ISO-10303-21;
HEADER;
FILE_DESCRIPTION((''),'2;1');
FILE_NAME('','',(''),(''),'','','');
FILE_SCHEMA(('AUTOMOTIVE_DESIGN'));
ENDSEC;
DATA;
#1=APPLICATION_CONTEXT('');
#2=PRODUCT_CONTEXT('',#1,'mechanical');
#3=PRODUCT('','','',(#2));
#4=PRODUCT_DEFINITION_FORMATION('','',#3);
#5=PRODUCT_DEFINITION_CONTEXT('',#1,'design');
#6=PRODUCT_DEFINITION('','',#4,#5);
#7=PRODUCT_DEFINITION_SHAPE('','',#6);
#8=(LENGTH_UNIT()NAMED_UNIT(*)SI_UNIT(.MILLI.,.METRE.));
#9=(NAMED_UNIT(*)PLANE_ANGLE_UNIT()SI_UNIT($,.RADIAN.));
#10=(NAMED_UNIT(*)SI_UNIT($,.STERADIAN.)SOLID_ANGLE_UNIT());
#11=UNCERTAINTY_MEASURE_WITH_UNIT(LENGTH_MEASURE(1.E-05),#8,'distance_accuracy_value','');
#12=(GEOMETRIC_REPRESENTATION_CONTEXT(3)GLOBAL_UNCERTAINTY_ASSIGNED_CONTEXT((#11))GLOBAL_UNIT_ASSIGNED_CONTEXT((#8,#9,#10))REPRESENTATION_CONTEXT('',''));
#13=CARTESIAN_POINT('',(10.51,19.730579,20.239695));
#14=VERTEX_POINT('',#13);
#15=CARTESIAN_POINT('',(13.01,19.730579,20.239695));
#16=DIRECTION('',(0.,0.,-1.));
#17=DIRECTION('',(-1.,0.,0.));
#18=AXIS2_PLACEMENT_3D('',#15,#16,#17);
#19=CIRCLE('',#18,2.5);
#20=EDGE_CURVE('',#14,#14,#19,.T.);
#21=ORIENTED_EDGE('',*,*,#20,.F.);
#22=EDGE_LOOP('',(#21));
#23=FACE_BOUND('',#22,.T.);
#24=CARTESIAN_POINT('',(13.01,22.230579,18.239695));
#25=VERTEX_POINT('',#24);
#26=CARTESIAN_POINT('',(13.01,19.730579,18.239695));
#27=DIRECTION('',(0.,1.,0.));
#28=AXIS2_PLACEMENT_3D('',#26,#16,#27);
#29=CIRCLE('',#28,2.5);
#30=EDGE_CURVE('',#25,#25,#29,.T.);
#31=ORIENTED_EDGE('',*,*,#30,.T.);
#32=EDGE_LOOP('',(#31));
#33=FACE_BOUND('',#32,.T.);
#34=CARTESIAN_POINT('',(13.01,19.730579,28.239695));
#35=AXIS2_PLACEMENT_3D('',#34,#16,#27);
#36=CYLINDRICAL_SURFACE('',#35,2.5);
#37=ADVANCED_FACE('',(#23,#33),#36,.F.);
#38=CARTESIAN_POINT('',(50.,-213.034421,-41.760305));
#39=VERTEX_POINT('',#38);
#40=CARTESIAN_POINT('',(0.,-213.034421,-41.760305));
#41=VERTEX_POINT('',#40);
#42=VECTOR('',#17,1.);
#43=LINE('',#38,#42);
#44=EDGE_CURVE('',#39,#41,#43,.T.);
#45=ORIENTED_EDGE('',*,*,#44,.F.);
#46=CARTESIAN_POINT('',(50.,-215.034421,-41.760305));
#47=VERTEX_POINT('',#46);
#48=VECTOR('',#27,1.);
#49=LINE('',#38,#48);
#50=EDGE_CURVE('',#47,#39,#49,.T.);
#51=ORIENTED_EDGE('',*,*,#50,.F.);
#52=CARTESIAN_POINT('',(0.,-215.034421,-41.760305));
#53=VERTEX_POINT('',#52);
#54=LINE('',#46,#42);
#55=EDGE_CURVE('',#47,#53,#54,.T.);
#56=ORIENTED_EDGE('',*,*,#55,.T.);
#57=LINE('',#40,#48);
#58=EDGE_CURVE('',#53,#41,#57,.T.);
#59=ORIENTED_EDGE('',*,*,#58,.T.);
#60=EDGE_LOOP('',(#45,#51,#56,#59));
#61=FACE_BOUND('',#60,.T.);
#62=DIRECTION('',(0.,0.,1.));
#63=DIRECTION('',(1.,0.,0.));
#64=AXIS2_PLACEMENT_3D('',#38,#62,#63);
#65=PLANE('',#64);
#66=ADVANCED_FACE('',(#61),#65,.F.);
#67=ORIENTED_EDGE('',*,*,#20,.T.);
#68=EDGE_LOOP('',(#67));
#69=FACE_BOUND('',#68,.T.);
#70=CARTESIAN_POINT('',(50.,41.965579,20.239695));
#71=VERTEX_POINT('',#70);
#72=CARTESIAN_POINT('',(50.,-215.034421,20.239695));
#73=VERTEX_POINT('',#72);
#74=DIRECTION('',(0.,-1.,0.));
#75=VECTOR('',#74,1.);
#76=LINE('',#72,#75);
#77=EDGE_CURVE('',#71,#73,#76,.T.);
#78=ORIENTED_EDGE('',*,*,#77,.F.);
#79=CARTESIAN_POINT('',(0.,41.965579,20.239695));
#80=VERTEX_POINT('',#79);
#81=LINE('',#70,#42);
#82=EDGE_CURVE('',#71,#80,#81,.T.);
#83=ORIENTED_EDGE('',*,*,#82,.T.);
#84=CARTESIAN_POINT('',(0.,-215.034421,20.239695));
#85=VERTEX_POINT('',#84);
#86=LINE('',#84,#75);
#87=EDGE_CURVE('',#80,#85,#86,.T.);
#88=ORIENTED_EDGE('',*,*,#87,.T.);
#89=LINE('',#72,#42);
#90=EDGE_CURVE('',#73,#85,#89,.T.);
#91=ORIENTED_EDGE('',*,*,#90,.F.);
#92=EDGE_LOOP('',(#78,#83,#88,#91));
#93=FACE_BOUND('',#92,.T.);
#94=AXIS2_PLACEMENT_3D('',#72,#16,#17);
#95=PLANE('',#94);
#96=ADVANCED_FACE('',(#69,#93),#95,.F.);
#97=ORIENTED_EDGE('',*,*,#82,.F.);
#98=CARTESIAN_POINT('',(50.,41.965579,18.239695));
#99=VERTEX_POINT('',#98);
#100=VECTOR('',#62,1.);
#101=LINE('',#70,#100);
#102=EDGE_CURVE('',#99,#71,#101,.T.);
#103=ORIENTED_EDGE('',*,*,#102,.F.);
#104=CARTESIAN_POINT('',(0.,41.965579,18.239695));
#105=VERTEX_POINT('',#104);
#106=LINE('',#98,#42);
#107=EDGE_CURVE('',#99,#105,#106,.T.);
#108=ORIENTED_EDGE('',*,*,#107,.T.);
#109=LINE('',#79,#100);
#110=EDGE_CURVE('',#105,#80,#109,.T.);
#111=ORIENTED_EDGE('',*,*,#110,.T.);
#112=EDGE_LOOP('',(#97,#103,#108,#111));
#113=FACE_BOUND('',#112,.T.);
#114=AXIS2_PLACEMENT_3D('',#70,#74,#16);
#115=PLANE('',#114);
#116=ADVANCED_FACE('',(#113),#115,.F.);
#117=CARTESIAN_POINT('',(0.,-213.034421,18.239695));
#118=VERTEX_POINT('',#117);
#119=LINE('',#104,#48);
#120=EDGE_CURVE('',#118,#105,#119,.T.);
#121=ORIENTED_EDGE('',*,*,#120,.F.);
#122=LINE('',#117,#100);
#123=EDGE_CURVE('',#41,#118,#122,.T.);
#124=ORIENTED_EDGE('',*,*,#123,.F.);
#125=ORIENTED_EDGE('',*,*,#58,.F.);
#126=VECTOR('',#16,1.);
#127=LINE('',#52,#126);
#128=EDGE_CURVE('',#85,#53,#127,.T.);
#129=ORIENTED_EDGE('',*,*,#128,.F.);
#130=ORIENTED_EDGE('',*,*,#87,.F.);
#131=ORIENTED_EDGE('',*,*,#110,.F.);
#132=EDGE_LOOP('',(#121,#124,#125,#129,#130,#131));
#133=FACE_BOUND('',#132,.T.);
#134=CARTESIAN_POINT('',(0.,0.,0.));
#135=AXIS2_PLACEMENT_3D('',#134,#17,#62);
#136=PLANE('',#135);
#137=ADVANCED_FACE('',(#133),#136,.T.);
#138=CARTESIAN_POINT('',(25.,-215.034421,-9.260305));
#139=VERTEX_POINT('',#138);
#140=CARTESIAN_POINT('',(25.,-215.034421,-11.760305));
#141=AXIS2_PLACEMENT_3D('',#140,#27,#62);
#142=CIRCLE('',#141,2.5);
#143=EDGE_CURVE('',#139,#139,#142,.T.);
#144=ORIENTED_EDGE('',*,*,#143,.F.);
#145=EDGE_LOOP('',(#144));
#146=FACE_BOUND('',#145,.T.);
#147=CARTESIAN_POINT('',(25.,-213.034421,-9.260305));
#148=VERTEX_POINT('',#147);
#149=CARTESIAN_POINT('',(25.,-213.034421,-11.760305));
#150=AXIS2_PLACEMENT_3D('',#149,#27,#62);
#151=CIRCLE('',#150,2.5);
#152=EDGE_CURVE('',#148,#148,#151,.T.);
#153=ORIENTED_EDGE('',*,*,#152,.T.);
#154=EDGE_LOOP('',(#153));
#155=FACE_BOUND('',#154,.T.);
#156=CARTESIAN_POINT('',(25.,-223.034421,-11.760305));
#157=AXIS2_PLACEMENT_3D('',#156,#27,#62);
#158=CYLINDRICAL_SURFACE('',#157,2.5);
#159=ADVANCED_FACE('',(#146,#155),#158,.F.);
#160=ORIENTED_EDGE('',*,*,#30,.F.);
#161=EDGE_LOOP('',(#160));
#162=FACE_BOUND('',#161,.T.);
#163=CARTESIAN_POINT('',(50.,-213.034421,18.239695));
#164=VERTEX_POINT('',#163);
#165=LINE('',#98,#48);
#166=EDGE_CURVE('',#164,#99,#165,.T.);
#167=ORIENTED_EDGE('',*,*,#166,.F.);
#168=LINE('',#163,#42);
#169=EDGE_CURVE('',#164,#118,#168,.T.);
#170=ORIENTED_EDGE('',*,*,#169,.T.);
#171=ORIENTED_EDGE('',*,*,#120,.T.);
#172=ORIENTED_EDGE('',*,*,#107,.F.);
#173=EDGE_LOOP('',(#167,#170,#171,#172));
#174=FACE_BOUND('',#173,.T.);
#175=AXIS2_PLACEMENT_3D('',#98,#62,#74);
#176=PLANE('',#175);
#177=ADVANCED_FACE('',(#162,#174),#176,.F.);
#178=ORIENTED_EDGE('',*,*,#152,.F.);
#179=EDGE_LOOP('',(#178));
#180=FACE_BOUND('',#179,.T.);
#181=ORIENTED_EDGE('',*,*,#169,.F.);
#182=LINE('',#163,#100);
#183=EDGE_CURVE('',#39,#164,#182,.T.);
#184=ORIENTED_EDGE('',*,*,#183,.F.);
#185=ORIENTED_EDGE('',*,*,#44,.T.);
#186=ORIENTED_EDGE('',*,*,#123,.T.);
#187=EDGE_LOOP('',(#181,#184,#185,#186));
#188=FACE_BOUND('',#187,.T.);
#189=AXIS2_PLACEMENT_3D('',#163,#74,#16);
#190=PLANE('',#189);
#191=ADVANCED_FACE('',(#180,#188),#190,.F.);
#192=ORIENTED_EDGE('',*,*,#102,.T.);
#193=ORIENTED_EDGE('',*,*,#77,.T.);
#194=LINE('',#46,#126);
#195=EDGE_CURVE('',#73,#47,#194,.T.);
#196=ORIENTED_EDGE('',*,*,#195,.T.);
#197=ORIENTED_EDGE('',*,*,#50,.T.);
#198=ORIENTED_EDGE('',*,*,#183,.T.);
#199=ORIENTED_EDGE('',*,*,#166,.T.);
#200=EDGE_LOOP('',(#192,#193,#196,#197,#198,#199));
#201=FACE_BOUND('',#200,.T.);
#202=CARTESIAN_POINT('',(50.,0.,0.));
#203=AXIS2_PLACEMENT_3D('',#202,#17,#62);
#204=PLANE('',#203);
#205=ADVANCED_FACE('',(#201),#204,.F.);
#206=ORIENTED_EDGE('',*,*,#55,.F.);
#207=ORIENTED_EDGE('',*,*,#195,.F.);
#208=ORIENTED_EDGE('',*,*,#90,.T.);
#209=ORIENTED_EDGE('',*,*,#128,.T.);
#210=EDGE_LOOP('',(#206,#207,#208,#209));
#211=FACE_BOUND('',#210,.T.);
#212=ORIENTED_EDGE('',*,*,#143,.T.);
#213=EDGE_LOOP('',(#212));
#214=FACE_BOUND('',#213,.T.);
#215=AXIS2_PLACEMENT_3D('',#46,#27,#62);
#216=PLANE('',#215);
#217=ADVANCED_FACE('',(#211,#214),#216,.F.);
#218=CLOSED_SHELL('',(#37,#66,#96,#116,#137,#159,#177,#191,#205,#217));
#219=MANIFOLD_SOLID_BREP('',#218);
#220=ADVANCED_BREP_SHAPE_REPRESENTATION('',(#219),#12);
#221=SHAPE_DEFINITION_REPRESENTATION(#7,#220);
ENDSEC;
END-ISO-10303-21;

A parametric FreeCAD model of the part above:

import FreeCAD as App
import Part
import Sketcher
from FreeCAD import Vector
Q = App.Units.Quantity


def add_polygon(sketch, points):
    """Adds a closed chain of lines whose ends are joined by coincident constraints."""
    first, n = sketch.GeometryCount, len(points)
    for a, b in zip(points, points[1:] + points[:1]):
        sketch.addGeometry(Part.LineSegment(App.Vector(*a, 0), App.Vector(*b, 0)), False)
    for i in range(n):
        sketch.addConstraint(Sketcher.Constraint("Coincident", first + i, 2, first + (i + 1) % n, 1))

doc = App.newDocument("Part")
body = doc.addObject("PartDesign::Body", "Body")

# Sketch on YZ plane
sketch1 = body.newObject("Sketcher::SketchObject", "Sketch")
sketch1.AttachmentSupport = (doc.getObject("YZ_Plane"), [""])
sketch1.MapMode = "FlatFace"
add_polygon(sketch1, [(41.965579, 20.239695), (-215.034421, 20.239695), (-215.034421, -41.760305), (-213.034421, -41.760305), (-213.034421, 18.239695), (41.965579, 18.239695)])  # lines 0-5
sketch1.addConstraint([
    Sketcher.Constraint("Horizontal", 0),
    Sketcher.Constraint("Vertical", 1),
    Sketcher.Constraint("Horizontal", 2),
    Sketcher.Constraint("Vertical", 3),
    Sketcher.Constraint("Horizontal", 4),
    Sketcher.Constraint("Vertical", 5),
    Sketcher.Constraint("Equal", 2, 5),
    Sketcher.Constraint("DistanceX", 0, 2, 0, 1, Q("257 mm")),
    Sketcher.Constraint("DistanceX", 2, 1, 2, 2, Q("2 mm")),
    Sketcher.Constraint("DistanceY", 1, 2, 1, 1, Q("62 mm")),
    Sketcher.Constraint("DistanceX", 0, 2, -1, 1, Q("215.034421 mm")),
    Sketcher.Constraint("DistanceY", -1, 1, 0, 2, Q("20.239695 mm")),
])
pad1 = body.newObject("PartDesign::Pad", "Pad")
pad1.Profile = sketch1
pad1.Length = 50

# Sketch on XZ plane
sketch2 = body.newObject("Sketcher::SketchObject", "Sketch001")
sketch2.AttachmentSupport = (doc.getObject("XZ_Plane"), [""])
sketch2.MapMode = "FlatFace"
sketch2.AttachmentOffset = App.Placement(Vector(0, 0, 213.034421), App.Rotation())
sketch2.addGeometry(Part.Circle(Vector(25, -11.760305, 0), Vector(0, 0, 1), 2.5), False)
sketch2.addConstraint([
    Sketcher.Constraint("Diameter", 0, Q("5 mm")),
    Sketcher.Constraint("DistanceX", -1, 1, 0, 3, Q("25 mm")),
    Sketcher.Constraint("DistanceY", 0, 3, -1, 1, Q("11.760305 mm")),
])
pocket1 = body.newObject("PartDesign::Pocket", "Pocket")
pocket1.Profile = sketch2
pocket1.Length = 10
pocket1.Reversed = True

# Sketch on XY plane
sketch3 = body.newObject("Sketcher::SketchObject", "Sketch002")
sketch3.AttachmentSupport = (doc.getObject("XY_Plane"), [""])
sketch3.MapMode = "FlatFace"
sketch3.AttachmentOffset = App.Placement(Vector(0, 0, 18.239695), App.Rotation())
sketch3.addGeometry(Part.Circle(Vector(13.01, 19.730579, 0), Vector(0, 0, 1), 2.5), False)
sketch3.addConstraint([
    Sketcher.Constraint("Diameter", 0, Q("5 mm")),
    Sketcher.Constraint("DistanceX", -1, 1, 0, 3, Q("13.01 mm")),
    Sketcher.Constraint("DistanceY", -1, 1, 0, 3, Q("19.730579 mm")),
])
pocket2 = body.newObject("PartDesign::Pocket", "Pocket001")
pocket2.Profile = sketch3
pocket2.Length = 10
pocket2.Reversed = True

doc.recompute()
